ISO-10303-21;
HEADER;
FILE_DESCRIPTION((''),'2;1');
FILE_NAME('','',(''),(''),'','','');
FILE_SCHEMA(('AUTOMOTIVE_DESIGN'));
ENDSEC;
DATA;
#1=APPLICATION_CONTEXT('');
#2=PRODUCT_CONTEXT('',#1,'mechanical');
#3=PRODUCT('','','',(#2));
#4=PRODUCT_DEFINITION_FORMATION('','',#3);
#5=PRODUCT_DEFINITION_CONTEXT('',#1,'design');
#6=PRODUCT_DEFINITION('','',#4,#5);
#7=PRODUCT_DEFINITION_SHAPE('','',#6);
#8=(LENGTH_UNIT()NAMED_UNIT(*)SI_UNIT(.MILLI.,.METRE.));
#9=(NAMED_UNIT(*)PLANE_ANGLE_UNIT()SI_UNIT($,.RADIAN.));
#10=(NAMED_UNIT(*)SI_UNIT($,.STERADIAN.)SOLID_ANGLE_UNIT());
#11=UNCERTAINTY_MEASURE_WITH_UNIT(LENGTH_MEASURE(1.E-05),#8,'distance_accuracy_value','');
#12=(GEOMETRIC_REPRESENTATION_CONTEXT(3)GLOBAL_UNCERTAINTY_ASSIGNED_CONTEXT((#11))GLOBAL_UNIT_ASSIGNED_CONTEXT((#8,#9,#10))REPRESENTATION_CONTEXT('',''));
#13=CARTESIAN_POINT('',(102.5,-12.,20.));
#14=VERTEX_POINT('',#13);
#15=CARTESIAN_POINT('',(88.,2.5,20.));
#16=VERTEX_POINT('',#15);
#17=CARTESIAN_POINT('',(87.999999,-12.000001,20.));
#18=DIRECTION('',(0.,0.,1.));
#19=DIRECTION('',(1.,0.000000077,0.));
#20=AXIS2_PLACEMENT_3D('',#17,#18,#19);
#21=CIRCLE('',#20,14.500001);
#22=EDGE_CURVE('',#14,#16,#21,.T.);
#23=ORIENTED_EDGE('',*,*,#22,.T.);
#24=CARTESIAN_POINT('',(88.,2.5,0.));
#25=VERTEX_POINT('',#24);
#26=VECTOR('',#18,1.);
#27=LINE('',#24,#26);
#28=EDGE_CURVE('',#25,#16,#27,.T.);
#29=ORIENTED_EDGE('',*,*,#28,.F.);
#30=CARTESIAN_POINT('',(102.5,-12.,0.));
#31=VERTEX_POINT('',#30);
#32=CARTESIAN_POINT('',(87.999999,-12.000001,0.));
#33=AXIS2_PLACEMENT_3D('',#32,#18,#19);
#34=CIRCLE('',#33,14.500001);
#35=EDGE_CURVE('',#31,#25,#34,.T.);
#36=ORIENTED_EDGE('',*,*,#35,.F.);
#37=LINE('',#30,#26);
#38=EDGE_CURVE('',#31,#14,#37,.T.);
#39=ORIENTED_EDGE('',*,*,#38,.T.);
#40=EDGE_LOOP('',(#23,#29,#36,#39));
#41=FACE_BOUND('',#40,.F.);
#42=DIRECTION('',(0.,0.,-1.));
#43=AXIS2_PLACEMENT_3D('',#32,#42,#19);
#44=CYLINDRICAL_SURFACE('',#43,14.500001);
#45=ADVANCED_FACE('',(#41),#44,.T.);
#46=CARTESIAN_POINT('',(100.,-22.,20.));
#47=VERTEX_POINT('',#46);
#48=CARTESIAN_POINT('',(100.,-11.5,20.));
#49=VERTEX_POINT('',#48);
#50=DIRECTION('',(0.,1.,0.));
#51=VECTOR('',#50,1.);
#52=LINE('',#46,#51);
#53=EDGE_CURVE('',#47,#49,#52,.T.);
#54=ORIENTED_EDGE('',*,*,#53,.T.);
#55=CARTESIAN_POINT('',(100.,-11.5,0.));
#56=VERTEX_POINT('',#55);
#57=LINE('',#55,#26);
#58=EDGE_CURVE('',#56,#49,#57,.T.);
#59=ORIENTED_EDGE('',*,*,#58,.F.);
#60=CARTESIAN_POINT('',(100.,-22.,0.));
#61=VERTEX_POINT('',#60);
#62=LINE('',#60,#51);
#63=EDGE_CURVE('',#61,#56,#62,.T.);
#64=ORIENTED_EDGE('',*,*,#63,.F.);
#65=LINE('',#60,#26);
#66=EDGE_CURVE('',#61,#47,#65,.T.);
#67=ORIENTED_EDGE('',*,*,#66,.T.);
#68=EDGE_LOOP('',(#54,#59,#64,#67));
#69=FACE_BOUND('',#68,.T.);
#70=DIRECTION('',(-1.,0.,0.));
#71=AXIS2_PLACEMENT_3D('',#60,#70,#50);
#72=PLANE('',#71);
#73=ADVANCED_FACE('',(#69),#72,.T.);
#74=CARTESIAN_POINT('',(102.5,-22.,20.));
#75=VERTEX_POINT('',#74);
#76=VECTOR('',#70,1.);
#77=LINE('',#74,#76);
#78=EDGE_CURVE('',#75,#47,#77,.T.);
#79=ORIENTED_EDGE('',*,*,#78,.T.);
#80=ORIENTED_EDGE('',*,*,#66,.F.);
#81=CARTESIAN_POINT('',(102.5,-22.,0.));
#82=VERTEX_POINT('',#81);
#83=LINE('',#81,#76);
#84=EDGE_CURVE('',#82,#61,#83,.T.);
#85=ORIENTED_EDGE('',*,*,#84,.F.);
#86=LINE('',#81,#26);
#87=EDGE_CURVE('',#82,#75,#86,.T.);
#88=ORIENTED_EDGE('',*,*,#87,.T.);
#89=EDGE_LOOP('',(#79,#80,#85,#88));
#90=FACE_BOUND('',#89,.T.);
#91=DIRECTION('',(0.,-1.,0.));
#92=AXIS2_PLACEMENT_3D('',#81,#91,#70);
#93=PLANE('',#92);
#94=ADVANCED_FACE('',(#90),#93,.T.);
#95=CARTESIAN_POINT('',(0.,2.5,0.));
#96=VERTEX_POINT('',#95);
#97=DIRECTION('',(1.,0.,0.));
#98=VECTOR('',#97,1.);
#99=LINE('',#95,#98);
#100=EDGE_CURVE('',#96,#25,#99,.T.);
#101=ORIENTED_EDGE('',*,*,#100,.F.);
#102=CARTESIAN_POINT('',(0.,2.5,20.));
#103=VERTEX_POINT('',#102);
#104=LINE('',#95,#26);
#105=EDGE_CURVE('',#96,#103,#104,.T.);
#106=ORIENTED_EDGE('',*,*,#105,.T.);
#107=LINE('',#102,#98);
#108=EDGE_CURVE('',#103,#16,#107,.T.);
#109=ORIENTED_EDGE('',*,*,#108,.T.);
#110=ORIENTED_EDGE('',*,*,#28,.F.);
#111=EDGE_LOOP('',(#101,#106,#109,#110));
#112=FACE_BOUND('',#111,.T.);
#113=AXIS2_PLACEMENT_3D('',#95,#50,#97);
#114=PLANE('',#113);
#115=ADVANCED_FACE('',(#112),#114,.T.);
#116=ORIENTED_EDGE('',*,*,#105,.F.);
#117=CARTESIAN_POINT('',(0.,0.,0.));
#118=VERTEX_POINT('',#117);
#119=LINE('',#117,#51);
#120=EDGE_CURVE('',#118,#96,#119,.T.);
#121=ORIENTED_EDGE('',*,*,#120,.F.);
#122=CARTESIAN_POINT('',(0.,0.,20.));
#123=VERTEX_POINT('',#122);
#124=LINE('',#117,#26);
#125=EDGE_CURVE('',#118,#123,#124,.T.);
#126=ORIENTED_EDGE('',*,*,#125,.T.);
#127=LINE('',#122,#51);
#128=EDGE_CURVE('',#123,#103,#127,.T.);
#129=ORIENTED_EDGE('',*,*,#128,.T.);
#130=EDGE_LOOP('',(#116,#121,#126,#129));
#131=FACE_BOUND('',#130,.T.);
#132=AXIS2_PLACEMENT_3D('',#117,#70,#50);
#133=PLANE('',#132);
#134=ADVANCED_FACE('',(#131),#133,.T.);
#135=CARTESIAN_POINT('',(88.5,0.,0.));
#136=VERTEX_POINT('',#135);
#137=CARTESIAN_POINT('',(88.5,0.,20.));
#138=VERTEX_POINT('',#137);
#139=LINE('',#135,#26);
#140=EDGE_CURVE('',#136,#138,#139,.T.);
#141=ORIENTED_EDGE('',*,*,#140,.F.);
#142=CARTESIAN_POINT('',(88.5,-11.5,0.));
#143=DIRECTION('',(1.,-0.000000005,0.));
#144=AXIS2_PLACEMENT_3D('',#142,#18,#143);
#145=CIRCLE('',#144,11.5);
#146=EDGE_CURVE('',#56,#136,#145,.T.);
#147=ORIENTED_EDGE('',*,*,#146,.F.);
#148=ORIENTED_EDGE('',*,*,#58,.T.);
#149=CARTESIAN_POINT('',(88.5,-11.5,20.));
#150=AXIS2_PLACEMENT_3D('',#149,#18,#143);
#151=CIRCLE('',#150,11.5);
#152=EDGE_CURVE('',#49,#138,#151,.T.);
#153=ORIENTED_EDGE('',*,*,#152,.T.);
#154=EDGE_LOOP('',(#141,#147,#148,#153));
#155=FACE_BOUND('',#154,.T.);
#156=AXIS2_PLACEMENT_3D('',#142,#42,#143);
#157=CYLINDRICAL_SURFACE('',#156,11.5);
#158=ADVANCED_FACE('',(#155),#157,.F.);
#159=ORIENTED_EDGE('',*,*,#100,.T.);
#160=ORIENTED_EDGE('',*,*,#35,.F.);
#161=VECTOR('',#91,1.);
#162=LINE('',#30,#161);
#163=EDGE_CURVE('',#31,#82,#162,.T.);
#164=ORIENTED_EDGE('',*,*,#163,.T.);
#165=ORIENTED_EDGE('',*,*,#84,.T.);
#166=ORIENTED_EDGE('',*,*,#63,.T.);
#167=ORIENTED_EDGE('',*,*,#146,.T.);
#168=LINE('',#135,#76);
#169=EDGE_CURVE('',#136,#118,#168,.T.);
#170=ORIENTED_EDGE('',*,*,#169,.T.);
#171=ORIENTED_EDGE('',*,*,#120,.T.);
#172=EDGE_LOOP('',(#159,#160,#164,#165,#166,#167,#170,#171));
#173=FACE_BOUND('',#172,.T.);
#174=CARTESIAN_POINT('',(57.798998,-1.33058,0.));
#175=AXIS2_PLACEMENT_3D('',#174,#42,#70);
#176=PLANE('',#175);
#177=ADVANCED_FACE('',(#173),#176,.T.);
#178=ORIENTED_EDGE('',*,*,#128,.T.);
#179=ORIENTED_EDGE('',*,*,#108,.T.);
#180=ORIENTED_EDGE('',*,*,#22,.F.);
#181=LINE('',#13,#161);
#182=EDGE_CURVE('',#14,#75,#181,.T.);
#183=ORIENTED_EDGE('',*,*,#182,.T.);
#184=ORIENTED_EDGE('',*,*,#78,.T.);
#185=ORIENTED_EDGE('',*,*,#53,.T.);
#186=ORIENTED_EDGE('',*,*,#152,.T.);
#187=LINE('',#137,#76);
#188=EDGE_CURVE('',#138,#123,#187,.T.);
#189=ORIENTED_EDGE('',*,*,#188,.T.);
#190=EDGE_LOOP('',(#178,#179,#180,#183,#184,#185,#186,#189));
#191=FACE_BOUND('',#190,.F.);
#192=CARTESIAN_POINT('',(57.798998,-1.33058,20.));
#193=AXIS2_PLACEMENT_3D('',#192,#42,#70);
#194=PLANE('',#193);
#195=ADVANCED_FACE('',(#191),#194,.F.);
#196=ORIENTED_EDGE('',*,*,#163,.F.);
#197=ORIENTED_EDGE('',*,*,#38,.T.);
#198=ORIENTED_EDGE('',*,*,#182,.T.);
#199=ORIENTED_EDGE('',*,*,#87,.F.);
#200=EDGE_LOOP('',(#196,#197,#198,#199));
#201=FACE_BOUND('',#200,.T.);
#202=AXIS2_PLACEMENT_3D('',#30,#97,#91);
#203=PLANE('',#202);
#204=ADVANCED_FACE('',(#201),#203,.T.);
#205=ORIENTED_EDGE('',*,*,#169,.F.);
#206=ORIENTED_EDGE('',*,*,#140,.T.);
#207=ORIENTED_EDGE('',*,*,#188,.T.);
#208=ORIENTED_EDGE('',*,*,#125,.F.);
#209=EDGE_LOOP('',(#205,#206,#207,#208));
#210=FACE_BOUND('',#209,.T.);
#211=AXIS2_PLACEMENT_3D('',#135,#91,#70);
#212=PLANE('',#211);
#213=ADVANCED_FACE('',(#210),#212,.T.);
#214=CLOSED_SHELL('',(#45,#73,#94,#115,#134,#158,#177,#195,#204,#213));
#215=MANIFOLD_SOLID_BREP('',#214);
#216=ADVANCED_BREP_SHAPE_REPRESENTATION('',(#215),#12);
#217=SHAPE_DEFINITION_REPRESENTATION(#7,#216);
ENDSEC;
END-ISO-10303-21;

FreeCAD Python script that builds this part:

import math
import FreeCAD as App
import Part
import Sketcher
from FreeCAD import Vector

doc = App.newDocument("Part")
body = doc.addObject("PartDesign::Body", "Body")

sketch1 = body.newObject("Sketcher::SketchObject", "Sketch")
sketch1.AttachmentSupport = (doc.getObject("XZ_Plane"), [""])
sketch1.MapMode = "FlatFace"
sketch1.addGeometry(Part.LineSegment(Vector(88, 2.5, 0), Vector(0, 2.5, 0)), False)
sketch1.addGeometry(Part.LineSegment(Vector(0, 2.5, 0), Vector(0, 0, 0)), False)
sketch1.addGeometry(Part.LineSegment(Vector(0, 0, 0), Vector(88.5, 0, 0)), False)
sketch1.addGeometry(Part.ArcOfCircle(Part.Circle(Vector(88.5, -11.5, 0), Vector(0, 0, 1), 11.5), math.radians(0), math.radians(90)), False)
sketch1.addGeometry(Part.LineSegment(Vector(100, -11.5, 0), Vector(100, -22, 0)), False)
sketch1.addGeometry(Part.LineSegment(Vector(100, -22, 0), Vector(102.5, -22, 0)), False)
sketch1.addGeometry(Part.LineSegment(Vector(102.5, -22, 0), Vector(102.5, -12, 0)), False)
sketch1.addGeometry(Part.ArcOfCircle(Part.Circle(Vector(88, -12, 0), Vector(0, 0, 1), 14.5), math.radians(0), math.radians(90)), False)
sketch1.addConstraint(Sketcher.Constraint("Coincident", 0, 2, 1, 1))
sketch1.addConstraint(Sketcher.Constraint("Coincident", 1, 2, 2, 1))
sketch1.addConstraint(Sketcher.Constraint("Tangent", 2, 2, 3, 2))
sketch1.addConstraint(Sketcher.Constraint("Tangent", 3, 1, 4, 1))
sketch1.addConstraint(Sketcher.Constraint("Coincident", 4, 2, 5, 1))
sketch1.addConstraint(Sketcher.Constraint("Coincident", 5, 2, 6, 1))
sketch1.addConstraint(Sketcher.Constraint("Tangent", 6, 2, 7, 1))
sketch1.addConstraint(Sketcher.Constraint("Tangent", 7, 2, 0, 1))
sketch1.addConstraint(Sketcher.Constraint("Horizontal", 0))
sketch1.addConstraint(Sketcher.Constraint("Vertical", 1))
sketch1.addConstraint(Sketcher.Constraint("Horizontal", 2))
sketch1.addConstraint(Sketcher.Constraint("Vertical", 4))
sketch1.addConstraint(Sketcher.Constraint("Horizontal", 5))
sketch1.addConstraint(Sketcher.Constraint("Vertical", 6))
sketch1.addConstraint(Sketcher.Constraint("Coincident", 1, 2, -1, 1))
sketch1.addConstraint(Sketcher.Constraint("Equal", 5, 1))
sketch1.addConstraint(Sketcher.Constraint("Radius", 3, 11.5))
sketch1.addConstraint(Sketcher.Constraint("Radius", 7, 14.500001))
sketch1.addConstraint(Sketcher.Constraint("DistanceX", 0, 2, 0, 1, 88.0))
sketch1.addConstraint(Sketcher.Constraint("DistanceY", 6, 1, 6, 2, 10.0))
sketch1.addConstraint(Sketcher.Constraint("DistanceX", 2, 1, 2, 2, 88.5))
pad1 = body.newObject("PartDesign::Pad", "Pad")
pad1.Profile = sketch1
pad1.Length = 20
body2 = doc.addObject("PartDesign::Body", "Body001")
doc.recompute()

body.Placement = App.Placement(Vector(0, 0, 0), App.Rotation(Vector(-1, 0, 0), 90))
boolean = body2.newObject("PartDesign::Boolean", "Boolean")
boolean.Type = "Fuse"
boolean.addObjects([body])

doc.recompute()
